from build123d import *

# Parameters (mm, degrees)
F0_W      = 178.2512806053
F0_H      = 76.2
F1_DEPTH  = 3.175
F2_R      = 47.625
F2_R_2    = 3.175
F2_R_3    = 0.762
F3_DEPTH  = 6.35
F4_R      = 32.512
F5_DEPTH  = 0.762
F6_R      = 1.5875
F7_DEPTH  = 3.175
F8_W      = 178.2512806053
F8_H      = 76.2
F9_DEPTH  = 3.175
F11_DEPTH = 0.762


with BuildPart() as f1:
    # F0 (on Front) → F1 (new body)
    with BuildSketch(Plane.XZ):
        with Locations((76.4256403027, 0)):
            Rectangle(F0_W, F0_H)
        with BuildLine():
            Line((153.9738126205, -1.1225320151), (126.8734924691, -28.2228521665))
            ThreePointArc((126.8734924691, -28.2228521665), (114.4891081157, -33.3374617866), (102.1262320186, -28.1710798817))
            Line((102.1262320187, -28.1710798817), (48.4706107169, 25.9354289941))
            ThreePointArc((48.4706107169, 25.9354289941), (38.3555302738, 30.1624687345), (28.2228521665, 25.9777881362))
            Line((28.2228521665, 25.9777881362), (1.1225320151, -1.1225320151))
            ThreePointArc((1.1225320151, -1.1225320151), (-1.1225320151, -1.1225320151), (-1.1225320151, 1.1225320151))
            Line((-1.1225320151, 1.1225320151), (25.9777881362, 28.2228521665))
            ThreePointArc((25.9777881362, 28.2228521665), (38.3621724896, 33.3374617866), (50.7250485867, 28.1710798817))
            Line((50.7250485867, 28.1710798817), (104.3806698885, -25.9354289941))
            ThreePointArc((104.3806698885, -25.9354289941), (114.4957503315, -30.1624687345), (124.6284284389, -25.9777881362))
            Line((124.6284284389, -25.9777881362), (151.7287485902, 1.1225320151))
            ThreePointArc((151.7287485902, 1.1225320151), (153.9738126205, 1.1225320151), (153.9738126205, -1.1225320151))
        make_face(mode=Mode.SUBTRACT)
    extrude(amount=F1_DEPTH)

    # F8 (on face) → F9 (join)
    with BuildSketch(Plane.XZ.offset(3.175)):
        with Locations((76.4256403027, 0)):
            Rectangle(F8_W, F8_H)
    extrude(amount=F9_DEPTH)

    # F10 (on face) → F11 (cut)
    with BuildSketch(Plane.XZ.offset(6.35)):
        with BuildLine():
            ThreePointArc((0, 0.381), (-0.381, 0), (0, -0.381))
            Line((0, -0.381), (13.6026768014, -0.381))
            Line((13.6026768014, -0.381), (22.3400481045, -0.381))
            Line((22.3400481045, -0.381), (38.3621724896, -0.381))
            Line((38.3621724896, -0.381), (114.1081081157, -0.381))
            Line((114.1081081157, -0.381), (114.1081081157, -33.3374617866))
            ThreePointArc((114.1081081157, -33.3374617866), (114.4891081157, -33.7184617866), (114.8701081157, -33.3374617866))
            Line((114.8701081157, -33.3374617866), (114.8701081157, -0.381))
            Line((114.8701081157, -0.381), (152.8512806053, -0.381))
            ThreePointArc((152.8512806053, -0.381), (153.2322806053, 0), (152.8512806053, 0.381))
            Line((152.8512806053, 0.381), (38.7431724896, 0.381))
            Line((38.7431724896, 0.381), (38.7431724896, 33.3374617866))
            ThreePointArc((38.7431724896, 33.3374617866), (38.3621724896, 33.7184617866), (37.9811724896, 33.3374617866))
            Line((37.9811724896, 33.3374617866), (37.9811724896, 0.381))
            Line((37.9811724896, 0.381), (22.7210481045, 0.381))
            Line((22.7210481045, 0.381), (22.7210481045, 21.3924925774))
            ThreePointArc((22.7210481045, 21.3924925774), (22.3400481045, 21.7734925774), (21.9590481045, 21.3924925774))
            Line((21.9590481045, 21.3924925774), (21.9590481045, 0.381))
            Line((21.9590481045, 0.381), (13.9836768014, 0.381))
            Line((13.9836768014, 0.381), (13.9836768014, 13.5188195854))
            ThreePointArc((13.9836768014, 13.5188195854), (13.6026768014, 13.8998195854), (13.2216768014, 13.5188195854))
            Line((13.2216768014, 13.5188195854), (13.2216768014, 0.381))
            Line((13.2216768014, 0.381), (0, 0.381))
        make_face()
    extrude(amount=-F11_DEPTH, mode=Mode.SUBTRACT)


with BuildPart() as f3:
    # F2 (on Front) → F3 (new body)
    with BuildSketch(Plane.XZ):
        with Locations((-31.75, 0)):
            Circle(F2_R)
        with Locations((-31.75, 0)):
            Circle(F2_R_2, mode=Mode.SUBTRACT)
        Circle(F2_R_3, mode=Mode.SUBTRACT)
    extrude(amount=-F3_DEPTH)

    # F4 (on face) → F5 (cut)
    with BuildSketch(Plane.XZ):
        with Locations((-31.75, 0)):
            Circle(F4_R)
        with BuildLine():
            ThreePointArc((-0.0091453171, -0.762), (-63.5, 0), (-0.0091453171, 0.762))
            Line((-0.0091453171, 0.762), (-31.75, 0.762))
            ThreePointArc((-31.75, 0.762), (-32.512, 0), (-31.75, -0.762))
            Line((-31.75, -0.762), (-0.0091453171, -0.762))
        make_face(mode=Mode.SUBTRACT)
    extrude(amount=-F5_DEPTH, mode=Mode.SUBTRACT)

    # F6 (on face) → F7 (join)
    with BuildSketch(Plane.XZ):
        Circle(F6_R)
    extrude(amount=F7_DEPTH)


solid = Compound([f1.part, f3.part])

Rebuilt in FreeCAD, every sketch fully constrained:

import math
import FreeCAD as App
import Part
import Sketcher
Q = App.Units.Quantity

doc = App.newDocument("Part")
body = doc.addObject("PartDesign::Body", "Body")

sketch1 = body.newObject("Sketcher::SketchObject", "Sketch")
sketch1.AttachmentSupport = (doc.getObject("XZ_Plane"), [""])
sketch1.MapMode = "FlatFace"
sketch1.addGeometry(Part.LineSegment(App.Vector(-12.7, 38.1, 0), App.Vector(-12.7, -38.1, 0)), False)
sketch1.addGeometry(Part.LineSegment(App.Vector(-12.7, -38.1, 0), App.Vector(165.6, -38.1, 0)), False)
sketch1.addGeometry(Part.LineSegment(App.Vector(165.6, -38.1, 0), App.Vector(165.6, 38.1, 0)), False)
sketch1.addGeometry(Part.LineSegment(App.Vector(165.6, 38.1, 0), App.Vector(-12.7, 38.1, 0)), False)
sketch1.addGeometry(Part.ArcOfCircle(Part.Circle(App.Vector(152.9, 0, 0), App.Vector(0, 0, 1), 1.6), math.radians(-45), math.radians(135)), False)
sketch1.addGeometry(Part.LineSegment(App.Vector(154, -1.1, 0), App.Vector(126.9, -28.2, 0)), False)
sketch1.addGeometry(Part.ArcOfCircle(Part.Circle(App.Vector(114.5, -15.9, 0), App.Vector(0, 0, 1), 17.5), math.radians(-135), math.radians(-45)), False)
sketch1.addGeometry(Part.LineSegment(App.Vector(102.1, -28.2, 0), App.Vector(48.5, 25.9, 0)), False)
sketch1.addGeometry(Part.ArcOfCircle(Part.Circle(App.Vector(38.3, 15.9, 0), App.Vector(0, 0, 1), 14.3), math.radians(45), math.radians(135)), False)
sketch1.addGeometry(Part.LineSegment(App.Vector(28.2, 26, 0), App.Vector(1.1, -1.1, 0)), False)
sketch1.addGeometry(Part.ArcOfCircle(Part.Circle(App.Vector(0, 0, 0), App.Vector(0, 0, 1), 1.6), math.radians(135), math.radians(315)), False)
sketch1.addGeometry(Part.LineSegment(App.Vector(-1.1, 1.1, 0), App.Vector(26, 28.2, 0)), False)
sketch1.addGeometry(Part.ArcOfCircle(Part.Circle(App.Vector(38.3, 15.9, 0), App.Vector(0, 0, 1), 17.5), math.radians(45), math.radians(135)), False)
sketch1.addGeometry(Part.LineSegment(App.Vector(50.7, 28.2, 0), App.Vector(104.4, -25.9, 0)), False)
sketch1.addGeometry(Part.ArcOfCircle(Part.Circle(App.Vector(114.5, -15.9, 0), App.Vector(0, 0, 1), 14.3), math.radians(-135), math.radians(-45)), False)
sketch1.addGeometry(Part.LineSegment(App.Vector(124.6, -26, 0), App.Vector(151.7, 1.1, 0)), False)
sketch1.addConstraint(Sketcher.Constraint("Coincident", 0, 2, 1, 1))
sketch1.addConstraint(Sketcher.Constraint("Coincident", 1, 2, 2, 1))
sketch1.addConstraint(Sketcher.Constraint("Coincident", 2, 2, 3, 1))
sketch1.addConstraint(Sketcher.Constraint("Coincident", 3, 2, 0, 1))
sketch1.addConstraint(Sketcher.Constraint("Tangent", 4, 1, 5, 1))
sketch1.addConstraint(Sketcher.Constraint("Tangent", 5, 2, 6, 2))
sketch1.addConstraint(Sketcher.Constraint("Tangent", 6, 1, 7, 1))
sketch1.addConstraint(Sketcher.Constraint("Tangent", 7, 2, 8, 1))
sketch1.addConstraint(Sketcher.Constraint("Tangent", 8, 2, 9, 1))
sketch1.addConstraint(Sketcher.Constraint("Tangent", 9, 2, 10, 2))
sketch1.addConstraint(Sketcher.Constraint("Tangent", 10, 1, 11, 1))
sketch1.addConstraint(Sketcher.Constraint("Tangent", 11, 2, 12, 2))
sketch1.addConstraint(Sketcher.Constraint("Tangent", 12, 1, 13, 1))
sketch1.addConstraint(Sketcher.Constraint("Tangent", 13, 2, 14, 1))
sketch1.addConstraint(Sketcher.Constraint("Tangent", 14, 2, 15, 1))
sketch1.addConstraint(Sketcher.Constraint("Tangent", 15, 2, 4, 2))
sketch1.addConstraint(Sketcher.Constraint("Vertical", 0))
sketch1.addConstraint(Sketcher.Constraint("Horizontal", 1))
sketch1.addConstraint(Sketcher.Constraint("Vertical", 2))
sketch1.addConstraint(Sketcher.Constraint("Horizontal", 3))
sketch1.addConstraint(Sketcher.Constraint("Coincident", 10, 3, -1, 1))
sketch1.addConstraint(Sketcher.Constraint("Coincident", 12, 3, 8, 3))
sketch1.addConstraint(Sketcher.Constraint("Coincident", 14, 3, 6, 3))
sketch1.addConstraint(Sketcher.Constraint("Equal", 4, 10))
sketch1.addConstraint(Sketcher.Constraint("Equal", 6, 12))
sketch1.addConstraint(Sketcher.Constraint("Equal", 8, 14))
sketch1.addConstraint(Sketcher.Constraint("PointOnObject", 4, 3, -1))
sketch1.addConstraint(Sketcher.Constraint("Parallel", 5, 9))
sketch1.addConstraint(Sketcher.Constraint("Parallel", 9, 11))
sketch1.addConstraint(Sketcher.Constraint("Equal", 5, 9))
sketch1.addConstraint(Sketcher.Constraint("DistanceY", 0, 2, 0, 1, Q("3 in")))
sketch1.addConstraint(Sketcher.Constraint("Distance", 7, Q("3 in")))
sketch1.addConstraint(Sketcher.Constraint("Angle", 5, Q("-135 deg")))
sketch1.addConstraint(Sketcher.Constraint("Radius", 4, Q("0.0625 in")))
sketch1.addConstraint(Sketcher.Constraint("Radius", 6, Q("0.6875 in")))
sketch1.addConstraint(Sketcher.Constraint("DistanceX", 8, 3, 6, 3, Q("3 in")))
sketch1.addConstraint(Sketcher.Constraint("DistanceX", 0, 2, -1, 1, Q("0.5 in")))
sketch1.addConstraint(Sketcher.Constraint("DistanceY", 0, 2, -1, 1, Q("1.5 in")))
sketch1.addConstraint(Sketcher.Constraint("DistanceX", 4, 3, 1, 2, Q("0.5 in")))
pad1 = body.newObject("PartDesign::Pad", "Pad")
pad1.Profile = sketch1
pad1.Length = Q("0.125 in")

sketch2 = body.newObject("Sketcher::SketchObject", "Sketch001")
sketch2.AttachmentSupport = (doc.getObject("XZ_Plane"), [""])
sketch2.MapMode = "FlatFace"
sketch2.AttachmentOffset = App.Placement(App.Vector(0, 0, 0.125 * 25.4), App.Rotation())
sketch2.addGeometry(Part.LineSegment(App.Vector(-13, 38, 0), App.Vector(-13, -38, 0)), False)
sketch2.addGeometry(Part.LineSegment(App.Vector(-13, -38, 0), App.Vector(166, -38, 0)), False)
sketch2.addGeometry(Part.LineSegment(App.Vector(166, -38, 0), App.Vector(166, 38, 0)), False)
sketch2.addGeometry(Part.LineSegment(App.Vector(166, 38, 0), App.Vector(-13, 38, 0)), False)
sketch2.addConstraint(Sketcher.Constraint("Coincident", 0, 2, 1, 1))
sketch2.addConstraint(Sketcher.Constraint("Coincident", 1, 2, 2, 1))
sketch2.addConstraint(Sketcher.Constraint("Coincident", 2, 2, 3, 1))
sketch2.addConstraint(Sketcher.Constraint("Coincident", 3, 2, 0, 1))
sketch2.addConstraint(Sketcher.Constraint("Vertical", 0))
sketch2.addConstraint(Sketcher.Constraint("Horizontal", 1))
sketch2.addConstraint(Sketcher.Constraint("Vertical", 2))
sketch2.addConstraint(Sketcher.Constraint("Horizontal", 3))
sketch2.addConstraint(Sketcher.Constraint("DistanceY", 0, 2, 0, 1, Q("3 in")))
sketch2.addConstraint(Sketcher.Constraint("DistanceX", 0, 2, -1, 1, Q("0.5 in")))
sketch2.addConstraint(Sketcher.Constraint("DistanceY", 0, 2, -1, 1, Q("1.5 in")))
sketch2.addConstraint(Sketcher.Constraint("DistanceX", 1, 1, 1, 2, 178.251281))
pad2 = body.newObject("PartDesign::Pad", "Pad001")
pad2.Profile = sketch2
pad2.Length = Q("0.125 in")

sketch3 = body.newObject("Sketcher::SketchObject", "Sketch002")
sketch3.AttachmentSupport = (doc.getObject("XZ_Plane"), [""])
sketch3.MapMode = "FlatFace"
sketch3.AttachmentOffset = App.Placement(App.Vector(0, 0, 0.25 * 25.4), App.Rotation())
sketch3.addGeometry(Part.ArcOfCircle(Part.Circle(App.Vector(0, 0, 0), App.Vector(0, 0, 1), 0.38), math.radians(90), math.radians(270)), False)
sketch3.addGeometry(Part.LineSegment(App.Vector(0, -0.38, 0), App.Vector(114.11, -0.38, 0)), False)
sketch3.addGeometry(Part.LineSegment(App.Vector(114.11, -0.38, 0), App.Vector(114.11, -33.34, 0)), False)
sketch3.addGeometry(Part.ArcOfCircle(Part.Circle(App.Vector(114.49, -33.34, 0), App.Vector(0, 0, 1), 0.38), math.radians(180), math.radians(360)), False)
sketch3.addGeometry(Part.LineSegment(App.Vector(114.87, -33.34, 0), App.Vector(114.87, -0.38, 0)), False)
sketch3.addGeometry(Part.LineSegment(App.Vector(114.87, -0.38, 0), App.Vector(152.85, -0.38, 0)), False)
sketch3.addGeometry(Part.ArcOfCircle(Part.Circle(App.Vector(152.85, 0, 0), App.Vector(0, 0, 1), 0.38), math.radians(-90), math.radians(90)), False)
sketch3.addGeometry(Part.LineSegment(App.Vector(152.85, 0.38, 0), App.Vector(38.74, 0.38, 0)), False)
sketch3.addGeometry(Part.LineSegment(App.Vector(38.74, 0.38, 0), App.Vector(38.74, 33.34, 0)), False)
sketch3.addGeometry(Part.ArcOfCircle(Part.Circle(App.Vector(38.36, 33.34, 0), App.Vector(0, 0, 1), 0.38), math.radians(0), math.radians(180)), False)
sketch3.addGeometry(Part.LineSegment(App.Vector(37.98, 33.34, 0), App.Vector(37.98, 0.38, 0)), False)
sketch3.addGeometry(Part.LineSegment(App.Vector(37.98, 0.38, 0), App.Vector(22.72, 0.38, 0)), False)
sketch3.addGeometry(Part.LineSegment(App.Vector(22.72, 0.38, 0), App.Vector(22.72, 21.39, 0)), False)
sketch3.addGeometry(Part.ArcOfCircle(Part.Circle(App.Vector(22.34, 21.39, 0), App.Vector(0, 0, 1), 0.38), math.radians(0), math.radians(180)), False)
sketch3.addGeometry(Part.LineSegment(App.Vector(21.96, 21.39, 0), App.Vector(21.96, 0.38, 0)), False)
sketch3.addGeometry(Part.LineSegment(App.Vector(21.96, 0.38, 0), App.Vector(13.98, 0.38, 0)), False)
sketch3.addGeometry(Part.LineSegment(App.Vector(13.98, 0.38, 0), App.Vector(13.98, 13.52, 0)), False)
sketch3.addGeometry(Part.ArcOfCircle(Part.Circle(App.Vector(13.6, 13.52, 0), App.Vector(0, 0, 1), 0.38), math.radians(0), math.radians(180)), False)
sketch3.addGeometry(Part.LineSegment(App.Vector(13.22, 13.52, 0), App.Vector(13.22, 0.38, 0)), False)
sketch3.addGeometry(Part.LineSegment(App.Vector(13.22, 0.38, 0), App.Vector(0, 0.38, 0)), False)
sketch3.addConstraint(Sketcher.Constraint("Tangent", 0, 2, 1, 1))
sketch3.addConstraint(Sketcher.Constraint("Coincident", 1, 2, 2, 1))
sketch3.addConstraint(Sketcher.Constraint("Tangent", 2, 2, 3, 1))
sketch3.addConstraint(Sketcher.Constraint("Tangent", 3, 2, 4, 1))
sketch3.addConstraint(Sketcher.Constraint("Coincident", 4, 2, 5, 1))
sketch3.addConstraint(Sketcher.Constraint("Tangent", 5, 2, 6, 1))
sketch3.addConstraint(Sketcher.Constraint("Tangent", 6, 2, 7, 1))
sketch3.addConstraint(Sketcher.Constraint("Coincident", 7, 2, 8, 1))
sketch3.addConstraint(Sketcher.Constraint("Tangent", 8, 2, 9, 1))
sketch3.addConstraint(Sketcher.Constraint("Tangent", 9, 2, 10, 1))
sketch3.addConstraint(Sketcher.Constraint("Coincident", 10, 2, 11, 1))
sketch3.addConstraint(Sketcher.Constraint("Coincident", 11, 2, 12, 1))
sketch3.addConstraint(Sketcher.Constraint("Tangent", 12, 2, 13, 1))
sketch3.addConstraint(Sketcher.Constraint("Tangent", 13, 2, 14, 1))
sketch3.addConstraint(Sketcher.Constraint("Coincident", 14, 2, 15, 1))
sketch3.addConstraint(Sketcher.Constraint("Coincident", 15, 2, 16, 1))
sketch3.addConstraint(Sketcher.Constraint("Tangent", 16, 2, 17, 1))
sketch3.addConstraint(Sketcher.Constraint("Tangent", 17, 2, 18, 1))
sketch3.addConstraint(Sketcher.Constraint("Coincident", 18, 2, 19, 1))
sketch3.addConstraint(Sketcher.Constraint("Tangent", 19, 2, 0, 1))
sketch3.addConstraint(Sketcher.Constraint("Horizontal", 1))
sketch3.addConstraint(Sketcher.Constraint("Vertical", 2))
sketch3.addConstraint(Sketcher.Constraint("Vertical", 4))
sketch3.addConstraint(Sketcher.Constraint("Horizontal", 5))
sketch3.addConstraint(Sketcher.Constraint("Horizontal", 7))
sketch3.addConstraint(Sketcher.Constraint("Vertical", 8))
sketch3.addConstraint(Sketcher.Constraint("Vertical", 10))
sketch3.addConstraint(Sketcher.Constraint("Horizontal", 11))
sketch3.addConstraint(Sketcher.Constraint("Vertical", 12))
sketch3.addConstraint(Sketcher.Constraint("Vertical", 14))
sketch3.addConstraint(Sketcher.Constraint("Horizontal", 15))
sketch3.addConstraint(Sketcher.Constraint("Vertical", 16))
sketch3.addConstraint(Sketcher.Constraint("Vertical", 18))
sketch3.addConstraint(Sketcher.Constraint("Horizontal", 19))
sketch3.addConstraint(Sketcher.Constraint("Coincident", 0, 3, -1, 1))
sketch3.addConstraint(Sketcher.Constraint("Equal", 0, 3))
sketch3.addConstraint(Sketcher.Constraint("Equal", 3, 6))
sketch3.addConstraint(Sketcher.Constraint("Equal", 6, 9))
sketch3.addConstraint(Sketcher.Constraint("Equal", 9, 13))
sketch3.addConstraint(Sketcher.Constraint("Equal", 13, 17))
sketch3.addConstraint(Sketcher.Constraint("PointOnObject", 6, 3, -1))
sketch3.addConstraint(Sketcher.Constraint("Horizontal", 7, 2, 10, 2))
sketch3.addConstraint(Sketcher.Constraint("Horizontal", 11, 2, 14, 2))
sketch3.addConstraint(Sketcher.Constraint("Equal", 1, 7))
sketch3.addConstraint(Sketcher.Constraint("Equal", 4, 8))
sketch3.addConstraint(Sketcher.Constraint("Radius", 0, Q("0.015 in")))
sketch3.addConstraint(Sketcher.Constraint("DistanceX", 1, 1, 1, 2, 114.108108))
sketch3.addConstraint(Sketcher.Constraint("DistanceX", 15, 2, 15, 1, 7.975371))
sketch3.addConstraint(Sketcher.Constraint("DistanceY", 2, 2, 2, 1, 32.956462))
sketch3.addConstraint(Sketcher.Constraint("DistanceY", 16, 1, 16, 2, 13.13782))
sketch3.addConstraint(Sketcher.Constraint("DistanceX", 5, 1, 5, 2, 37.981172))
sketch3.addConstraint(Sketcher.Constraint("DistanceX", 11, 2, 11, 1, 15.260124))
sketch3.addConstraint(Sketcher.Constraint("DistanceY", 12, 1, 12, 2, 21.011493))
pocket1 = body.newObject("PartDesign::Pocket", "Pocket")
pocket1.Profile = sketch3
pocket1.Length = Q("0.03 in")
body2 = doc.addObject("PartDesign::Body", "Body001")

sketch4 = body2.newObject("Sketcher::SketchObject", "Sketch003")
sketch4.AttachmentSupport = (doc.getObject("XZ_Plane001"), [""])
sketch4.MapMode = "FlatFace"
sketch4.addGeometry(Part.Circle(App.Vector(-31.8, 0, 0), App.Vector(0, 0, 1), 47.6), False)
sketch4.addGeometry(Part.Circle(App.Vector(-31.8, 0, 0), App.Vector(0, 0, 1), 3.2), False)
sketch4.addGeometry(Part.Circle(App.Vector(0, 0, 0), App.Vector(0, 0, 1), 0.8), False)
sketch4.addConstraint(Sketcher.Constraint("Coincident", 2, 3, -1, 1))
sketch4.addConstraint(Sketcher.Constraint("Coincident", 1, 3, 0, 3))
sketch4.addConstraint(Sketcher.Constraint("PointOnObject", 0, 3, -1))
sketch4.addConstraint(Sketcher.Constraint("Diameter", 0, Q("3.75 in")))
sketch4.addConstraint(Sketcher.Constraint("Diameter", 1, Q("0.25 in")))
sketch4.addConstraint(Sketcher.Constraint("Diameter", 2, Q("0.06 in")))
sketch4.addConstraint(Sketcher.Constraint("DistanceX", 0, 3, -1, 1, Q("1.25 in")))
pad3 = body2.newObject("PartDesign::Pad", "Pad002")
pad3.Profile = sketch4
pad3.Length = Q("0.25 in")
pad3.Reversed = True

sketch5 = body2.newObject("Sketcher::SketchObject", "Sketch004")
sketch5.AttachmentSupport = (doc.getObject("XZ_Plane001"), [""])
sketch5.MapMode = "FlatFace"
sketch5.addGeometry(Part.Circle(App.Vector(-31.8, 0, 0), App.Vector(0, 0, 1), 32.5), False)
sketch5.addGeometry(Part.LineSegment(App.Vector(-31.8, -0.8, 0), App.Vector(0, -0.8, 0)), False)
sketch5.addGeometry(Part.ArcOfCircle(Part.Circle(App.Vector(-31.8, 0, 0), App.Vector(0, 0, 1), 31.8), math.radians(1), math.radians(359)), False)
sketch5.addGeometry(Part.LineSegment(App.Vector(0, 0.8, 0), App.Vector(-31.8, 0.8, 0)), False)
sketch5.addGeometry(Part.ArcOfCircle(Part.Circle(App.Vector(-31.8, 0, 0), App.Vector(0, 0, 1), 0.8), math.radians(90), math.radians(270)), False)
sketch5.addConstraint(Sketcher.Constraint("Coincident", 1, 2, 2, 2))
sketch5.addConstraint(Sketcher.Constraint("Coincident", 2, 1, 3, 1))
sketch5.addConstraint(Sketcher.Constraint("Tangent", 3, 2, 4, 1))
sketch5.addConstraint(Sketcher.Constraint("Tangent", 4, 2, 1, 1))
sketch5.addConstraint(Sketcher.Constraint("Horizontal", 1))
sketch5.addConstraint(Sketcher.Constraint("Horizontal", 3))
sketch5.addConstraint(Sketcher.Constraint("Coincident", 2, 3, 0, 3))
sketch5.addConstraint(Sketcher.Constraint("Coincident", 4, 3, 0, 3))
sketch5.addConstraint(Sketcher.Constraint("PointOnObject", 0, 3, -1))
sketch5.addConstraint(Sketcher.Constraint("Diameter", 0, Q("2.56 in")))
sketch5.addConstraint(Sketcher.Constraint("Radius", 2, Q("1.25 in")))
sketch5.addConstraint(Sketcher.Constraint("Radius", 4, Q("0.03 in")))
sketch5.addConstraint(Sketcher.Constraint("DistanceX", 0, 3, -1, 1, Q("1.25 in")))
pocket2 = body2.newObject("PartDesign::Pocket", "Pocket001")
pocket2.Profile = sketch5
pocket2.Length = Q("0.03 in")

sketch6 = body2.newObject("Sketcher::SketchObject", "Sketch005")
sketch6.AttachmentSupport = (doc.getObject("XZ_Plane001"), [""])
sketch6.MapMode = "FlatFace"
sketch6.addGeometry(Part.Circle(App.Vector(0, 0, 0), App.Vector(0, 0, 1), 1.6), False)
sketch6.addConstraint(Sketcher.Constraint("Coincident", 0, 3, -1, 1))
sketch6.addConstraint(Sketcher.Constraint("Diameter", 0, Q("0.125 in")))
pad4 = body2.newObject("PartDesign::Pad", "Pad003")
pad4.Profile = sketch6
pad4.Length = Q("0.125 in")

doc.recompute()
